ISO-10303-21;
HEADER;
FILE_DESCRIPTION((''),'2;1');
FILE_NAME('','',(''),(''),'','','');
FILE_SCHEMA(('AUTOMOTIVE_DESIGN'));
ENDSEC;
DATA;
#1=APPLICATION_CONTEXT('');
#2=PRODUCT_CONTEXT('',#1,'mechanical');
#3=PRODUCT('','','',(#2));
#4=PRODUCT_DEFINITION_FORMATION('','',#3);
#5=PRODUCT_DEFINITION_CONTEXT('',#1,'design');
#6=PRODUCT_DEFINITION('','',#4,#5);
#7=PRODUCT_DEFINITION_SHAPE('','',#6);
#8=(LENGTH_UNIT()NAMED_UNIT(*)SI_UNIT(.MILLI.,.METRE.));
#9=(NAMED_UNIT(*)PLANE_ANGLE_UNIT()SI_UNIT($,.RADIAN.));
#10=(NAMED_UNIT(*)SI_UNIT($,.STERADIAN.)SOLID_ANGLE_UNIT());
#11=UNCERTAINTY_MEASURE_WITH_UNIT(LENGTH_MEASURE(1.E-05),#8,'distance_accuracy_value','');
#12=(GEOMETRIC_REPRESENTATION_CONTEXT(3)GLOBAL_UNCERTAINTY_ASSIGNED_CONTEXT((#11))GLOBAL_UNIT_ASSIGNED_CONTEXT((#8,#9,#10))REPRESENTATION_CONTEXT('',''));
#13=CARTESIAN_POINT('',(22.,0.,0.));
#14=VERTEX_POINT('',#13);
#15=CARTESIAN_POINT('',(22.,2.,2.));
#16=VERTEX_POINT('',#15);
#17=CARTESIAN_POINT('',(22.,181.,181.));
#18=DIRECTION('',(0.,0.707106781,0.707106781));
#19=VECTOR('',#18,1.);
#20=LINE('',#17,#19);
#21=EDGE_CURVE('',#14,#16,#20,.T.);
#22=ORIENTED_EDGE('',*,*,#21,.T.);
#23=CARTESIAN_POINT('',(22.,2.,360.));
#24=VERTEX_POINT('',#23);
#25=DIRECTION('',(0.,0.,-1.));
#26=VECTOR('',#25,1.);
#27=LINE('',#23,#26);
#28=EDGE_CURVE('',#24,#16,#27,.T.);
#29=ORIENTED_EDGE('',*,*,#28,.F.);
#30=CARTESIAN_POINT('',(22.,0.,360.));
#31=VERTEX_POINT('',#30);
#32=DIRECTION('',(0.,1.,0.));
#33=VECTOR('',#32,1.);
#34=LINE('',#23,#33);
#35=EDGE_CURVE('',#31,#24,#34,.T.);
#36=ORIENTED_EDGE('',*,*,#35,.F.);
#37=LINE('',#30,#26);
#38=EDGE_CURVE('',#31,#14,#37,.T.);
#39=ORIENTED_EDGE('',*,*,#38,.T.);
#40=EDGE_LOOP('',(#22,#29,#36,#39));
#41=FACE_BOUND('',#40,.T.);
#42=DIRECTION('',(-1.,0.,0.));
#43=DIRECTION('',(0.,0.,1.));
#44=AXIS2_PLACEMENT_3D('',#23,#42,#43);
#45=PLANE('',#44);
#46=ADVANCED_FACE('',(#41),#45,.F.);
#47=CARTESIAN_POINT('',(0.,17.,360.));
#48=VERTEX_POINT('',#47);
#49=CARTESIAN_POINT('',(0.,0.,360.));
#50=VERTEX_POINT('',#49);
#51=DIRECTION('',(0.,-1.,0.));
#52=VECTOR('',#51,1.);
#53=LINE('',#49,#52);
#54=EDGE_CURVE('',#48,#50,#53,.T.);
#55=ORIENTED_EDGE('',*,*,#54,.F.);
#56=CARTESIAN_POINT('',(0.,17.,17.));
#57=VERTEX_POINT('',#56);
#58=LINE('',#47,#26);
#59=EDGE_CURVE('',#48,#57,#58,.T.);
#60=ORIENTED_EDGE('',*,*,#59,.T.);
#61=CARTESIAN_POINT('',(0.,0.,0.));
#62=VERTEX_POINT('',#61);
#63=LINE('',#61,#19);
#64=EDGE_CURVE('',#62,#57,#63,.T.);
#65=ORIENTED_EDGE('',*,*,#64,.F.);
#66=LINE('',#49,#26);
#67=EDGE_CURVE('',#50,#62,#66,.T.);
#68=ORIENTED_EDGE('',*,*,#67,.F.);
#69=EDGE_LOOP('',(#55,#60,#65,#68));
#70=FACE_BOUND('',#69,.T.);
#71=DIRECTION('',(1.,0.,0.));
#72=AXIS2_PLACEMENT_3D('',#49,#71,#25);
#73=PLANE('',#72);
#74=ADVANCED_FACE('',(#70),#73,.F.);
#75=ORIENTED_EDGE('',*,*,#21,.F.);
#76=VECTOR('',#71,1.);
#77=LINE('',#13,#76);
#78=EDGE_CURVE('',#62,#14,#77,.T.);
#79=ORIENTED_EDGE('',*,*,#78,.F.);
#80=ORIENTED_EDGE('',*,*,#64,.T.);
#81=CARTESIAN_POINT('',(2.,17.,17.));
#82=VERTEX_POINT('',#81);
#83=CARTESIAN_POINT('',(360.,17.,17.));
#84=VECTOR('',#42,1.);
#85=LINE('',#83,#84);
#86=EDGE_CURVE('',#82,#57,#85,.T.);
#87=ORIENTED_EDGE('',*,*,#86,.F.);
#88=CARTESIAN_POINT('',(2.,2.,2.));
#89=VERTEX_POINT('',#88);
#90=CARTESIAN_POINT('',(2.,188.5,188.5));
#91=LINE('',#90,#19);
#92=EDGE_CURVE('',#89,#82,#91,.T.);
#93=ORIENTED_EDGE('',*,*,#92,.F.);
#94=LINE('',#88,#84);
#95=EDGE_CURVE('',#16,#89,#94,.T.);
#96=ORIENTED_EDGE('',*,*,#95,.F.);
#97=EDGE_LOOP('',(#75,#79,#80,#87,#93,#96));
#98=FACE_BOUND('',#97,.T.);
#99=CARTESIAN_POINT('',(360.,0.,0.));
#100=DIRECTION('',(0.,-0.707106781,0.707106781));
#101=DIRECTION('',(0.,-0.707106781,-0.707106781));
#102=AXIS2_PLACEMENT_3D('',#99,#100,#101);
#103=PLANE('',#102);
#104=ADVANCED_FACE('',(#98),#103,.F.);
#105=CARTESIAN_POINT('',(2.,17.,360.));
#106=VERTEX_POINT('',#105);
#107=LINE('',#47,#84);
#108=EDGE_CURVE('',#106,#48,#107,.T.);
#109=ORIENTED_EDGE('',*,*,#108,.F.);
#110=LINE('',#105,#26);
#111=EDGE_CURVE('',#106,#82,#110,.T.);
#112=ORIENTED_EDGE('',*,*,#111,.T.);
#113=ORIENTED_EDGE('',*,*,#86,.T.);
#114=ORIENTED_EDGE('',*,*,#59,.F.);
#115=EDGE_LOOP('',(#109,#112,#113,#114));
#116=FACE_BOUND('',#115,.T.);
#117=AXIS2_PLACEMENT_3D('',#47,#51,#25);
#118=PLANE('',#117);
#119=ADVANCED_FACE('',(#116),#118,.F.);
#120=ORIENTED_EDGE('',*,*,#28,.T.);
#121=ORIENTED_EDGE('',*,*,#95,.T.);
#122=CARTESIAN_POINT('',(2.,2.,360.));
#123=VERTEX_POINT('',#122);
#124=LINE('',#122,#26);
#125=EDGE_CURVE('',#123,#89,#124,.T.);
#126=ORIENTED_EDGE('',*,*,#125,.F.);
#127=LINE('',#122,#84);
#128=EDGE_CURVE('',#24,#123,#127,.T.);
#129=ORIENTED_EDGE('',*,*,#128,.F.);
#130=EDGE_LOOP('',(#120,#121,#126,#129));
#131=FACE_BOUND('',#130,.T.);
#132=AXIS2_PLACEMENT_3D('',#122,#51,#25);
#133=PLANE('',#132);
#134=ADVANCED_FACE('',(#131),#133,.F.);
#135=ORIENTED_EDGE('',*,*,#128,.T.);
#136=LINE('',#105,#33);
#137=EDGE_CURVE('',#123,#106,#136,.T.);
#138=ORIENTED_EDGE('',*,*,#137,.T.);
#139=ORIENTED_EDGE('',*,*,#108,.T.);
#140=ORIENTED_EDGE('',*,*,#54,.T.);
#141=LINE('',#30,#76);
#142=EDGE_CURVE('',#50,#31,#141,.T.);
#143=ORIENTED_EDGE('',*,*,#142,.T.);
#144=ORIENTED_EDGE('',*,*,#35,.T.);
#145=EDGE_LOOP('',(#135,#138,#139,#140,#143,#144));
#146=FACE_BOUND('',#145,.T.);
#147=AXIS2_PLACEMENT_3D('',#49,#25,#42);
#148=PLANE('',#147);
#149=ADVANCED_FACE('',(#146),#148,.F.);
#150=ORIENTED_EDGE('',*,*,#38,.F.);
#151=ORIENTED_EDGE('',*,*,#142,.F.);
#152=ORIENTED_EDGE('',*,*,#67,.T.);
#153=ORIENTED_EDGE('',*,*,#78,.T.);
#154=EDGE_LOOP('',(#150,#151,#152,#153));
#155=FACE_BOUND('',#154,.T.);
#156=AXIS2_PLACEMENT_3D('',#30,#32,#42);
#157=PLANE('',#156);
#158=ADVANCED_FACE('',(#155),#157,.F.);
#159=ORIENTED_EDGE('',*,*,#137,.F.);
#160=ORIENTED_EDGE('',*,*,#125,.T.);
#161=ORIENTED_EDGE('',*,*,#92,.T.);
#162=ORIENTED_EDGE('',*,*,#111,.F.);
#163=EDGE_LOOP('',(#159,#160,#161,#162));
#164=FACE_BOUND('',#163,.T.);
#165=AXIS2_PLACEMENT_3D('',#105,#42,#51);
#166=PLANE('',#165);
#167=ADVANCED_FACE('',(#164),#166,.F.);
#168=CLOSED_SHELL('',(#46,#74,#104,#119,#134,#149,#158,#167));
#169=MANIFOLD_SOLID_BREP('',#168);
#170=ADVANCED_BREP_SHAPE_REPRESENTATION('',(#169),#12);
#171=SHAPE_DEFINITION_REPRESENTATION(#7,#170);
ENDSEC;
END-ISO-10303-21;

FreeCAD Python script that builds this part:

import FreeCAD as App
import Part
import Sketcher
from FreeCAD import Vector


def add_polygon(sketch, points):
    """Adds a closed chain of lines whose ends are joined by coincident constraints."""
    first, n = sketch.GeometryCount, len(points)
    for a, b in zip(points, points[1:] + points[:1]):
        sketch.addGeometry(Part.LineSegment(App.Vector(*a, 0), App.Vector(*b, 0)), False)
    for i in range(n):
        sketch.addConstraint(Sketcher.Constraint("Coincident", first + i, 2, first + (i + 1) % n, 1))

doc = App.newDocument("Part")
params = doc.addObject("Spreadsheet::Sheet", "Params")
for row, (alias, value) in enumerate([
    ("sketch1_width", "22 mm"),
    ("sketch1_width2", "20 mm"),
    ("sketch1_height", "17 mm"),
    ("pad1_length", "360 mm"),
    ("sketch2_width", "17 mm"),
    ("pocket1_length", "360 mm"),
], start=1):
    params.set(f"A{row}", alias)
    params.set(f"B{row}", "=" + value)
    params.setAlias(f"B{row}", alias)

body = doc.addObject("PartDesign::Body", "Body")

# Sketch on XY plane
sketch1 = body.newObject("Sketcher::SketchObject", "Sketch")
sketch1.AttachmentSupport = (doc.getObject("XY_Plane"), [""])
sketch1.MapMode = "FlatFace"
add_polygon(sketch1, [(0, 17), (0, 0), (22, 0), (22, 2), (2, 2), (2, 17)])  # lines 0-5
sketch1.addConstraint([
    Sketcher.Constraint("Vertical", 0),
    Sketcher.Constraint("Horizontal", 1),
    Sketcher.Constraint("Vertical", 2),
    Sketcher.Constraint("Horizontal", 3),
    Sketcher.Constraint("Vertical", 4),
    Sketcher.Constraint("Horizontal", 5),
    Sketcher.Constraint("Coincident", 0, 2, -1, 1),
    Sketcher.Constraint("Equal", 5, 2),
    Sketcher.Constraint("DistanceX", 1, 1, 1, 2, 22.0),
    Sketcher.Constraint("DistanceX", 3, 2, 3, 1, 20.0),
    Sketcher.Constraint("DistanceY", 0, 2, 0, 1, 17.0),
])
sketch1.setExpression("Constraints[14]", "Params.sketch1_width")
sketch1.setExpression("Constraints[15]", "Params.sketch1_width2")
sketch1.setExpression("Constraints[16]", "Params.sketch1_height")
pad1 = body.newObject("PartDesign::Pad", "Pad")
pad1.Profile = sketch1
pad1.setExpression("Length", "Params.pad1_length")

# Sketch on YZ plane
sketch2 = body.newObject("Sketcher::SketchObject", "Sketch001")
sketch2.AttachmentSupport = (doc.getObject("YZ_Plane"), [""])
sketch2.MapMode = "FlatFace"
add_polygon(sketch2, [(0, 0), (17, 17), (17, 0)])  # lines 0-2
sketch2.addConstraint([
    Sketcher.Constraint("Vertical", 1),
    Sketcher.Constraint("Horizontal", 2),
    Sketcher.Constraint("Coincident", 2, 2, -1, 1),
    Sketcher.Constraint("Equal", 2, 1),
    Sketcher.Constraint("DistanceX", 2, 2, 2, 1, 17.0),
])
sketch2.setExpression("Constraints[7]", "Params.sketch2_width")
pocket1 = body.newObject("PartDesign::Pocket", "Pocket")
pocket1.Profile = sketch2
pocket1.setExpression("Length", "Params.pocket1_length")
pocket1.Reversed = True

doc.recompute()
